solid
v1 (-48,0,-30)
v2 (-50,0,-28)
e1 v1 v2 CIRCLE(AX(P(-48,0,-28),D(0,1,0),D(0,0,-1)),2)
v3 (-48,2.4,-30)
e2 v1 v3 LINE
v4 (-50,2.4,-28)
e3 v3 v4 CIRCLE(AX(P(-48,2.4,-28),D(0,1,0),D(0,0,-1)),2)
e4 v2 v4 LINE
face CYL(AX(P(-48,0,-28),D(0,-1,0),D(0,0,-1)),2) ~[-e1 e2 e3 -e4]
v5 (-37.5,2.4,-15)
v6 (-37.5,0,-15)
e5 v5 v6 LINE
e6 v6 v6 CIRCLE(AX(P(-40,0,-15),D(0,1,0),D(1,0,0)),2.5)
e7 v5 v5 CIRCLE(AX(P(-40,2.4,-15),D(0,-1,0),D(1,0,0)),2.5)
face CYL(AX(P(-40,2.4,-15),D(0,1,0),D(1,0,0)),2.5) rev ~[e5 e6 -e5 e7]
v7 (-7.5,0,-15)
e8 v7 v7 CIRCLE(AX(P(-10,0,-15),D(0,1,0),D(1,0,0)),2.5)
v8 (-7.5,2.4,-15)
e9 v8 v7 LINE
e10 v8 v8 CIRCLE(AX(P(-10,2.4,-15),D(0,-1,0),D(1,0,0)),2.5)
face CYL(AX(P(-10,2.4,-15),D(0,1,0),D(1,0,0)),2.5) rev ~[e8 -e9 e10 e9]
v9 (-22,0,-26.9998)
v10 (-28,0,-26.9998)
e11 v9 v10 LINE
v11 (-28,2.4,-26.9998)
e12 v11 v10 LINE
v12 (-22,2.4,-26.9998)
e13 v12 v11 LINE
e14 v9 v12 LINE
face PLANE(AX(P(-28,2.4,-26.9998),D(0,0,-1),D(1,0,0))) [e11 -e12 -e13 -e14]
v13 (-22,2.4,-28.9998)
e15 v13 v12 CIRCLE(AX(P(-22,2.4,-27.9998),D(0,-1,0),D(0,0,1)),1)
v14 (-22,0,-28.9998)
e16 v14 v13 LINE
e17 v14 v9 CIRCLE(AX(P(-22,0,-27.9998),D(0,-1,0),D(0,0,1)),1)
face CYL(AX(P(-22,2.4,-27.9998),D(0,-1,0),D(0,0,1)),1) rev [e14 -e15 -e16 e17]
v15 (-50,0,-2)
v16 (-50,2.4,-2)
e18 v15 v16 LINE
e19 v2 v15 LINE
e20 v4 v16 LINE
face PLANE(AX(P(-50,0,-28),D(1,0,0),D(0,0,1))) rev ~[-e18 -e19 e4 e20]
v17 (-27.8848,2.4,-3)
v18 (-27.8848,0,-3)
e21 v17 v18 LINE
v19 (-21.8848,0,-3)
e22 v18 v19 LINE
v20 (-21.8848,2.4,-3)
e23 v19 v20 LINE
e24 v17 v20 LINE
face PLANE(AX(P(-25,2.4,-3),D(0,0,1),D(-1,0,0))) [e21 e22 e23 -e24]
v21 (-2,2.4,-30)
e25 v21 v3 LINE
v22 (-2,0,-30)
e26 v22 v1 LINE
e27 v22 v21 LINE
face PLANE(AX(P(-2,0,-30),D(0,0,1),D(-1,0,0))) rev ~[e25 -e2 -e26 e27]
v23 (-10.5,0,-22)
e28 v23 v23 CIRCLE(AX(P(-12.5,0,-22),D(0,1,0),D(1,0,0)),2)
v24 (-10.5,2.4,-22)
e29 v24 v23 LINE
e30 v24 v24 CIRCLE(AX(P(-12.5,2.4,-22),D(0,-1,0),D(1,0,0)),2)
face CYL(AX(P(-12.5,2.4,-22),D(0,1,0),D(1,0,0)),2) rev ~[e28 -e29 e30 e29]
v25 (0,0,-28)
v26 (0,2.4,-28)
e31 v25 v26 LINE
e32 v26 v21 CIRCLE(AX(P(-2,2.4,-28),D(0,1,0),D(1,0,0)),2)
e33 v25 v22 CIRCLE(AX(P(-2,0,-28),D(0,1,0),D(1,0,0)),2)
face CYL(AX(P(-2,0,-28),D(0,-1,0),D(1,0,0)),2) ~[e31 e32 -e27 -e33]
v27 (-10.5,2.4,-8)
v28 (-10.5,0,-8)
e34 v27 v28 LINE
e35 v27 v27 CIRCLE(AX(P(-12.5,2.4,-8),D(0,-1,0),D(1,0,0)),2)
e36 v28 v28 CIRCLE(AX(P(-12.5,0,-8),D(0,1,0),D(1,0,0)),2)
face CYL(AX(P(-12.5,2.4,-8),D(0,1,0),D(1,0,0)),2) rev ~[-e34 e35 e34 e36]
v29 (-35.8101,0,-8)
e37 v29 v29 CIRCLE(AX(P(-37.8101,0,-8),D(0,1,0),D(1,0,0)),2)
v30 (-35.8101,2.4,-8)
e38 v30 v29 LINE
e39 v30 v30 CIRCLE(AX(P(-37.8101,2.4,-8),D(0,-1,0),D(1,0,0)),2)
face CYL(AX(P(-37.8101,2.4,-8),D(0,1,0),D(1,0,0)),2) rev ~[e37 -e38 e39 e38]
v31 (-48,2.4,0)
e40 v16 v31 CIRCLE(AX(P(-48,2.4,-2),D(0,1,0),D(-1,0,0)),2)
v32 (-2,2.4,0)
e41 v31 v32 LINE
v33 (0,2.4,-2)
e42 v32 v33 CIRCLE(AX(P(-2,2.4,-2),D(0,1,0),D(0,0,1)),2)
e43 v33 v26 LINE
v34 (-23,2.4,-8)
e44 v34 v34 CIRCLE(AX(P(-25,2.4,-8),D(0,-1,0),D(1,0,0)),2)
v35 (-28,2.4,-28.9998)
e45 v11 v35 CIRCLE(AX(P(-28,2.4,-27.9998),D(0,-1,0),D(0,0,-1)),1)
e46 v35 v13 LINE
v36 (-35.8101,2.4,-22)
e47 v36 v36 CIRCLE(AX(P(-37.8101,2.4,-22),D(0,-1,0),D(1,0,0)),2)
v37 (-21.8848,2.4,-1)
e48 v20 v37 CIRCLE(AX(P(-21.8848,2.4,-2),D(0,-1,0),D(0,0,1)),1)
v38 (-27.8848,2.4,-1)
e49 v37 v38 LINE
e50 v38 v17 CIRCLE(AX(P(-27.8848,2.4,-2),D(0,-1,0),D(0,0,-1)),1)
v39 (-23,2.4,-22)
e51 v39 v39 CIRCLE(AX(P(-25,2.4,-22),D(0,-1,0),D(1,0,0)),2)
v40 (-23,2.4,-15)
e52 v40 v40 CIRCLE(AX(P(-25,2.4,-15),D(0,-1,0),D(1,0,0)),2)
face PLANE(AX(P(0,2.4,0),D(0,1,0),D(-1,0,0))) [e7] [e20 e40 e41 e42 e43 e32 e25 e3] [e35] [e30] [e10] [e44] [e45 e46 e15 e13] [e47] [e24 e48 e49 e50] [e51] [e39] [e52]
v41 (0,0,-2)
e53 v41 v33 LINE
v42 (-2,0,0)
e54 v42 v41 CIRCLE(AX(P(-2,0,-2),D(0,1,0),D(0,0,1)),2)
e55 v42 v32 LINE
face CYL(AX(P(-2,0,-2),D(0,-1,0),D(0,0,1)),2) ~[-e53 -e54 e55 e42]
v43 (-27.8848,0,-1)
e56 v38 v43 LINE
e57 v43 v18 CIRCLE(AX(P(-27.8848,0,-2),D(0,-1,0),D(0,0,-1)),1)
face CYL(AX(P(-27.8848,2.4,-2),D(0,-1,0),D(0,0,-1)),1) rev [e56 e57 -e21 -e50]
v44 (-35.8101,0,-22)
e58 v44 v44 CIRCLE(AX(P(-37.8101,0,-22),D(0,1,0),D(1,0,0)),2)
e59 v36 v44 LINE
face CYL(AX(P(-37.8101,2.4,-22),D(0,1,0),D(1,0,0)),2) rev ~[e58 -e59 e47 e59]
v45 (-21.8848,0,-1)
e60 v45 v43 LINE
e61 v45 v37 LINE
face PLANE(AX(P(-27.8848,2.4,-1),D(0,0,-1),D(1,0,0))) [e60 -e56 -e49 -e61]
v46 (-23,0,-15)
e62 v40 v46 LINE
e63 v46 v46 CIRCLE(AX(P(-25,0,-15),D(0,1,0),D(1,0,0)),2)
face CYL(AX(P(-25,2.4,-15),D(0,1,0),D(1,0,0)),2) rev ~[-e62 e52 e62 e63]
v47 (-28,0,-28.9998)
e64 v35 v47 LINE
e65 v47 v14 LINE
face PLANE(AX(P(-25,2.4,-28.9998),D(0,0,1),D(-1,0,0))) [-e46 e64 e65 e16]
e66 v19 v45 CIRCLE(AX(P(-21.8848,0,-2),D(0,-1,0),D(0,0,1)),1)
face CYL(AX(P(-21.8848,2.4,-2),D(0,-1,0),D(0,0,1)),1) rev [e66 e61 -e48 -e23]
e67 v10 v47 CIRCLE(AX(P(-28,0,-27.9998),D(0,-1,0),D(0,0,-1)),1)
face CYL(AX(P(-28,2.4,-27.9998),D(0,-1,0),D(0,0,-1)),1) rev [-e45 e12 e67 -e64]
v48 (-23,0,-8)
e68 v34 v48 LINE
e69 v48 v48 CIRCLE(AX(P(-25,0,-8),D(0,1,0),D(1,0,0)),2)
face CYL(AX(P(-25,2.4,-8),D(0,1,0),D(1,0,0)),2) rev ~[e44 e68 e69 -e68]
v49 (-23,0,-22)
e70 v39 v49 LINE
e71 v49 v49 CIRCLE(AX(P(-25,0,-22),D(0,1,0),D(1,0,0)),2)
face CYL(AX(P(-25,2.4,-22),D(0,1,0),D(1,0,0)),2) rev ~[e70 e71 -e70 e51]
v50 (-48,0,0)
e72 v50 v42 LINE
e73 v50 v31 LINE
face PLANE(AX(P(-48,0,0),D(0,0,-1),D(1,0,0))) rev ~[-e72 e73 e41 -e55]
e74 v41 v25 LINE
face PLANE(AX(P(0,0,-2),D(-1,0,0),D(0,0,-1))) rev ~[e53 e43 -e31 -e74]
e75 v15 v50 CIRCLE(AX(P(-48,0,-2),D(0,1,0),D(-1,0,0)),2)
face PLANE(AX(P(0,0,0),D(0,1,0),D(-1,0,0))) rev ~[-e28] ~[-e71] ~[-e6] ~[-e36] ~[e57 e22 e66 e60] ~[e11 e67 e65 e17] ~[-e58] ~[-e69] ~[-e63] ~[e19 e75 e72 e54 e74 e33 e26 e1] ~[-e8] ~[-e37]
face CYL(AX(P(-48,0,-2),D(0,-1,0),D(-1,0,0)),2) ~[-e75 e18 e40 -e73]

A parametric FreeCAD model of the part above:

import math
import FreeCAD as App
import Part
import Sketcher

doc = App.newDocument("Part")
body = doc.addObject("PartDesign::Body", "Body")

# Sketch on XZ plane
sketch1 = doc.addObject("Sketcher::SketchObject", "Sketch")
body.addObject(sketch1)
sketch1.AttachmentSupport = (doc.XZ_Plane, [""])
sketch1.MapMode = "FlatFace"
sketch1.addGeometry([
    Part.ArcOfCircle(Part.Circle(App.Vector(-2, -2, 0), App.Vector(0, 0, 1), 2), math.radians(0), math.radians(90)),  # 0
    Part.LineSegment(App.Vector(0, -2, 0), App.Vector(0, -28, 0)),  # 1
    Part.ArcOfCircle(Part.Circle(App.Vector(-2, -28, 0), App.Vector(0, 0, 1), 2), math.radians(-90), math.radians(0)),  # 2
    Part.LineSegment(App.Vector(-2, -30, 0), App.Vector(-48, -30, 0)),  # 3
    Part.ArcOfCircle(Part.Circle(App.Vector(-48, -28, 0), App.Vector(0, 0, 1), 2), math.radians(180), math.radians(270)),  # 4
    Part.LineSegment(App.Vector(-50, -28, 0), App.Vector(-50, -2, 0)),  # 5
    Part.ArcOfCircle(Part.Circle(App.Vector(-48, -2, 0), App.Vector(0, 0, 1), 2), math.radians(90), math.radians(180)),  # 6
    Part.LineSegment(App.Vector(-48, 0, 0), App.Vector(-2, 0, 0)),  # 7
], False)
sketch1.addConstraint([
    Sketcher.Constraint("Tangent", 0, 1, 1, 1),
    Sketcher.Constraint("Tangent", 1, 2, 2, 2),
    Sketcher.Constraint("Tangent", 2, 1, 3, 1),
    Sketcher.Constraint("Tangent", 3, 2, 4, 2),
    Sketcher.Constraint("Tangent", 4, 1, 5, 1),
    Sketcher.Constraint("Tangent", 5, 2, 6, 2),
    Sketcher.Constraint("Tangent", 6, 1, 7, 1),
    Sketcher.Constraint("Tangent", 7, 2, 0, 2),
    Sketcher.Constraint("Vertical", 1),
    Sketcher.Constraint("Horizontal", 3),
    Sketcher.Constraint("Vertical", 5),
    Sketcher.Constraint("Horizontal", 7),
    Sketcher.Constraint("Equal", 0, 2),
    Sketcher.Constraint("Equal", 2, 4),
    Sketcher.Constraint("Equal", 4, 6),
    Sketcher.Constraint("PointOnObject", 0, 1, -2),
    Sketcher.Constraint("PointOnObject", 6, 1, -1),
    Sketcher.Constraint("Radius", 0, 2.0),
    Sketcher.Constraint("DistanceY", 2, 1, -1, 1, 30.0),
    Sketcher.Constraint("DistanceX", 4, 1, -1, 1, 50.0),
])
pad1 = doc.addObject("PartDesign::Pad", "Pad")
body.addObject(pad1)
pad1.Profile = sketch1
pad1.Length = 2.4
pad1.Reversed = True

# Sketch on XZ plane
sketch2 = doc.addObject("Sketcher::SketchObject", "Sketch001")
body.addObject(sketch2)
sketch2.AttachmentSupport = (doc.XZ_Plane, [""])
sketch2.MapMode = "FlatFace"
sketch2.AttachmentOffset = App.Placement(App.Vector(0, 0, -2.4), App.Rotation())
sketch2.addGeometry([
    Part.Circle(App.Vector(-40, -15, 0), App.Vector(0, 0, 1), 2.5),
    Part.Circle(App.Vector(-10, -15, 0), App.Vector(0, 0, 1), 2.5),
], False)
sketch2.addConstraint([
    Sketcher.Constraint("Equal", 0, 1),
    Sketcher.Constraint("Horizontal", 0, 3, 1, 3),
    Sketcher.Constraint("Diameter", 0, 5.0),
    Sketcher.Constraint("DistanceY", 0, 3, -1, 1, 15.0),
    Sketcher.Constraint("DistanceX", 0, 3, -1, 1, 40.0),
    Sketcher.Constraint("DistanceX", 1, 3, -1, 1, 10.0),
])
pocket1 = doc.addObject("PartDesign::Pocket", "Pocket")
body.addObject(pocket1)
pocket1.Profile = sketch2
pocket1.Length = 2.4
pocket1.Reversed = True

# Sketch on XZ plane
sketch3 = doc.addObject("Sketcher::SketchObject", "Sketch002")
body.addObject(sketch3)
sketch3.AttachmentSupport = (doc.XZ_Plane, [""])
sketch3.MapMode = "FlatFace"
sketch3.AttachmentOffset = App.Placement(App.Vector(0, 0, -2.4), App.Rotation())
sketch3.addGeometry([
    Part.LineSegment(App.Vector(-27.9, -1, 0), App.Vector(-21.9, -1, 0)),  # 0
    Part.ArcOfCircle(Part.Circle(App.Vector(-21.9, -2, 0), App.Vector(0, 0, 1), 1), math.radians(-90), math.radians(90)),  # 1
    Part.LineSegment(App.Vector(-21.9, -3, 0), App.Vector(-27.9, -3, 0)),  # 2
    Part.ArcOfCircle(Part.Circle(App.Vector(-27.9, -2, 0), App.Vector(0, 0, 1), 1), math.radians(90), math.radians(270)),  # 3
    Part.LineSegment(App.Vector(-28, -27, 0), App.Vector(-22, -27, 0)),  # 4
    Part.ArcOfCircle(Part.Circle(App.Vector(-22, -28, 0), App.Vector(0, 0, 1), 1), math.radians(-90), math.radians(90)),  # 5
    Part.LineSegment(App.Vector(-22, -29, 0), App.Vector(-28, -29, 0)),  # 6
    Part.ArcOfCircle(Part.Circle(App.Vector(-28, -28, 0), App.Vector(0, 0, 1), 1), math.radians(90), math.radians(270)),  # 7
], False)
sketch3.addConstraint([
    Sketcher.Constraint("Tangent", 0, 2, 1, 2),
    Sketcher.Constraint("Tangent", 1, 1, 2, 1),
    Sketcher.Constraint("Tangent", 2, 2, 3, 2),
    Sketcher.Constraint("Tangent", 3, 1, 0, 1),
    Sketcher.Constraint("Tangent", 4, 2, 5, 2),
    Sketcher.Constraint("Tangent", 5, 1, 6, 1),
    Sketcher.Constraint("Tangent", 6, 2, 7, 2),
    Sketcher.Constraint("Tangent", 7, 1, 4, 1),
    Sketcher.Constraint("Horizontal", 0),
    Sketcher.Constraint("Horizontal", 2),
    Sketcher.Constraint("Horizontal", 4),
    Sketcher.Constraint("Horizontal", 6),
    Sketcher.Constraint("Equal", 3, 5),
    Sketcher.Constraint("Equal", 2, 4),
    Sketcher.Constraint("Radius", 1, 1.0),
    Sketcher.Constraint("DistanceY", 1, 3, -1, 1, 2.0),
    Sketcher.Constraint("DistanceX", 0, 1, 0, 2, 6.0),
    Sketcher.Constraint("DistanceX", 5, 3, -1, 1, 22.0),
    Sketcher.Constraint("DistanceY", 5, 3, 1, 1, 24.9998),
    Sketcher.Constraint("DistanceX", 1, 3, -1, 1, 21.8848),
])
pocket2 = doc.addObject("PartDesign::Pocket", "Pocket001")
body.addObject(pocket2)
pocket2.Profile = sketch3
pocket2.Length = 66
pocket2.Midplane = True

# Sketch on XZ plane
sketch4 = doc.addObject("Sketcher::SketchObject", "Sketch003")
body.addObject(sketch4)
sketch4.AttachmentSupport = (doc.XZ_Plane, [""])
sketch4.MapMode = "FlatFace"
sketch4.AttachmentOffset = App.Placement(App.Vector(0, 0, -2.4), App.Rotation())
sketch4.addGeometry([
    Part.Circle(App.Vector(-25, -22, 0), App.Vector(0, 0, 1), 2),
    Part.Circle(App.Vector(-25, -8, 0), App.Vector(0, 0, 1), 2),
], False)
sketch4.addConstraint([
    Sketcher.Constraint("Equal", 0, 1),
    Sketcher.Constraint("Vertical", 0, 3, 1, 3),
    Sketcher.Constraint("Diameter", 0, 4.0),
    Sketcher.Constraint("DistanceX", 0, 3, -1, 1, 25.0),
    Sketcher.Constraint("DistanceY", 0, 3, -1, 1, 22.0),
    Sketcher.Constraint("DistanceY", 1, 3, -1, 1, 8.0),
])
pocket3 = doc.addObject("PartDesign::Pocket", "Pocket002")
body.addObject(pocket3)
pocket3.Profile = sketch4
pocket3.Length = 66
pocket3.Reversed = True

# Sketch on XZ plane
sketch5 = doc.addObject("Sketcher::SketchObject", "Sketch004")
body.addObject(sketch5)
sketch5.AttachmentSupport = (doc.XZ_Plane, [""])
sketch5.MapMode = "FlatFace"
sketch5.AttachmentOffset = App.Placement(App.Vector(0, 0, -2.4), App.Rotation())
sketch5.addGeometry([
    Part.Circle(App.Vector(-12.5, -22, 0), App.Vector(0, 0, 1), 2),
    Part.Circle(App.Vector(-12.5, -8, 0), App.Vector(0, 0, 1), 2),
    Part.Circle(App.Vector(-37.8, -22, 0), App.Vector(0, 0, 1), 2),
    Part.Circle(App.Vector(-37.8, -8, 0), App.Vector(0, 0, 1), 2),
], False)
sketch5.addConstraint([
    Sketcher.Constraint("Equal", 0, 1),
    Sketcher.Constraint("Equal", 1, 2),
    Sketcher.Constraint("Equal", 2, 3),
    Sketcher.Constraint("Horizontal", 0, 3, 2, 3),
    Sketcher.Constraint("Horizontal", 1, 3, 3, 3),
    Sketcher.Constraint("Vertical", 0, 3, 1, 3),
    Sketcher.Constraint("Vertical", 2, 3, 3, 3),
    Sketcher.Constraint("Diameter", 0, 4.0),
    Sketcher.Constraint("DistanceY", 0, 3, 1, 3, 14.0),
    Sketcher.Constraint("DistanceX", 0, 3, -1, 1, 12.5),
    Sketcher.Constraint("DistanceY", 0, 3, -1, 1, 22.0),
    Sketcher.Constraint("DistanceX", 2, 3, -1, 1, 37.81),
])
pocket4 = doc.addObject("PartDesign::Pocket", "Pocket003")
body.addObject(pocket4)
pocket4.Profile = sketch5
pocket4.Length = 66
pocket4.Reversed = True

# Sketch on XZ plane
sketch6 = doc.addObject("Sketcher::SketchObject", "Sketch005")
body.addObject(sketch6)
sketch6.AttachmentSupport = (doc.XZ_Plane, [""])
sketch6.MapMode = "FlatFace"
sketch6.AttachmentOffset = App.Placement(App.Vector(0, 0, -2.4), App.Rotation())
sketch6.addGeometry(Part.Circle(App.Vector(-25, -15, 0), App.Vector(0, 0, 1), 2), False)
sketch6.addConstraint([
    Sketcher.Constraint("Diameter", 0, 4.0),
    Sketcher.Constraint("DistanceY", 0, 3, -1, 1, 15.0),
    Sketcher.Constraint("DistanceX", 0, 3, -1, 1, 25.0),
])
pocket5 = doc.addObject("PartDesign::Pocket", "Pocket004")
body.addObject(pocket5)
pocket5.Profile = sketch6
pocket5.Type = "ThroughAll"
pocket5.Reversed = True

doc.recompute()
